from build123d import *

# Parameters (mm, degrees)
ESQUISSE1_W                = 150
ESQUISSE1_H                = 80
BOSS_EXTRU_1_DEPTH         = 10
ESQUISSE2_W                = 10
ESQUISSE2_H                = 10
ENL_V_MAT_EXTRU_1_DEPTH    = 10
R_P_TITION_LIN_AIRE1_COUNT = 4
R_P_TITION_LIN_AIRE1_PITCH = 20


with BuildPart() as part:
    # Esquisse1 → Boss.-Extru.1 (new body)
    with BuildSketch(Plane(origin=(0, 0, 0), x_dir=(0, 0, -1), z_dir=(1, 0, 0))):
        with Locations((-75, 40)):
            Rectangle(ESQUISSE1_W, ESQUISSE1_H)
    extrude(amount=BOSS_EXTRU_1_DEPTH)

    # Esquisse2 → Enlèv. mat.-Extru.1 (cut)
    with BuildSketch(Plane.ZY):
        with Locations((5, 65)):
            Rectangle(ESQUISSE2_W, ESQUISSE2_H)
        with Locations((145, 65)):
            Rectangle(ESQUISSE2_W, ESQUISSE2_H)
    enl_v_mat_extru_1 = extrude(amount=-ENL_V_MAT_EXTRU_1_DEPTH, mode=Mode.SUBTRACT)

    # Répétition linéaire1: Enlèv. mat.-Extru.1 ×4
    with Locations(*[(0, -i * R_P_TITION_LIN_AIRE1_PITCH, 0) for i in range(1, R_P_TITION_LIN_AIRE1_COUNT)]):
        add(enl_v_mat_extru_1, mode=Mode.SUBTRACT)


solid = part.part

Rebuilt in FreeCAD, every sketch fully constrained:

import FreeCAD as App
import Part
import Sketcher
Q = App.Units.Quantity


def add_polygon(sketch, points):
    """Adds a closed chain of lines whose ends are joined by coincident constraints."""
    first, n = sketch.GeometryCount, len(points)
    for a, b in zip(points, points[1:] + points[:1]):
        sketch.addGeometry(Part.LineSegment(App.Vector(*a, 0), App.Vector(*b, 0)), False)
    for i in range(n):
        sketch.addConstraint(Sketcher.Constraint("Coincident", first + i, 2, first + (i + 1) % n, 1))

doc = App.newDocument("Part")
params = doc.addObject("Spreadsheet::Sheet", "Params")
for row, (alias, value) in enumerate([
    ("sketch1_width", "80 mm"),
    ("sketch1_height", "150 mm"),
    ("pad1_length", "10 mm"),
    ("sketch2_width", "10 mm"),
    ("pocket1_length", "10 mm"),
    ("linearpattern_pitch", "20 mm"),
], start=1):
    params.set(f"A{row}", alias)
    params.set(f"B{row}", "=" + value)
    params.setAlias(f"B{row}", alias)

body = doc.addObject("PartDesign::Body", "Body")

# Sketch on YZ plane
sketch1 = body.newObject("Sketcher::SketchObject", "Sketch")
sketch1.AttachmentSupport = (doc.getObject("YZ_Plane"), [""])
sketch1.MapMode = "FlatFace"
add_polygon(sketch1, [(80, 150), (0, 150), (0, 0), (80, 0)])  # lines 0-3
sketch1.addConstraint([
    Sketcher.Constraint("Horizontal", 0),
    Sketcher.Constraint("Vertical", 1),
    Sketcher.Constraint("Horizontal", 2),
    Sketcher.Constraint("Vertical", 3),
    Sketcher.Constraint("Coincident", 1, 2, -1, 1),
    Sketcher.Constraint("DistanceX", 0, 2, 0, 1, Q("80 mm")),
    Sketcher.Constraint("DistanceY", 1, 2, 1, 1, Q("150 mm")),
])
sketch1.setExpression("Constraints[9]", "Params.sketch1_width")
sketch1.setExpression("Constraints[10]", "Params.sketch1_height")
pad1 = body.newObject("PartDesign::Pad", "Pad")
pad1.Profile = sketch1
pad1.setExpression("Length", "Params.pad1_length")

# Sketch on YZ plane
sketch2 = body.newObject("Sketcher::SketchObject", "Sketch001")
sketch2.AttachmentSupport = (doc.getObject("YZ_Plane"), [""])
sketch2.MapMode = "FlatFace"
add_polygon(sketch2, [(70, 0), (60, 0), (60, 10), (70, 10)])  # lines 0-3
add_polygon(sketch2, [(70, 140), (60, 140), (60, 150), (70, 150)])  # lines 4-7
sketch2.addConstraint([
    Sketcher.Constraint("Horizontal", 0),
    Sketcher.Constraint("Vertical", 1),
    Sketcher.Constraint("Horizontal", 2),
    Sketcher.Constraint("Vertical", 3),
    Sketcher.Constraint("Horizontal", 4),
    Sketcher.Constraint("Vertical", 5),
    Sketcher.Constraint("Horizontal", 6),
    Sketcher.Constraint("Vertical", 7),
    Sketcher.Constraint("PointOnObject", 0, 2, -1),
    Sketcher.Constraint("Vertical", 1, 2, 4, 2),
    Sketcher.Constraint("Vertical", 3, 2, 6, 2),
    Sketcher.Constraint("Equal", 6, 1),
    Sketcher.Constraint("Equal", 3, 5),
    Sketcher.Constraint("DistanceX", 0, 2, 0, 1, Q("10 mm")),
    Sketcher.Constraint("DistanceX", -1, 1, 0, 2, Q("60 mm")),
    Sketcher.Constraint("DistanceY", -1, 1, 4, 2, Q("140 mm")),
])
sketch2.setExpression("Constraints[21]", "Params.sketch2_width")
pocket1 = body.newObject("PartDesign::Pocket", "Pocket")
pocket1.Profile = sketch2
pocket1.setExpression("Length", "Params.pocket1_length")
pocket1.Reversed = True
doc.recompute()

linearpattern = body.newObject("PartDesign::LinearPattern", "LinearPattern")
linearpattern.Originals = [pocket1]
linearpattern.Direction = (doc.getObject("Y_Axis"), [""])
linearpattern.Mode = "offset"
linearpattern.setExpression("Offset", "Params.linearpattern_pitch")
linearpattern.Occurrences = 4
linearpattern.Reversed = True
body.Tip = linearpattern

doc.recompute()
